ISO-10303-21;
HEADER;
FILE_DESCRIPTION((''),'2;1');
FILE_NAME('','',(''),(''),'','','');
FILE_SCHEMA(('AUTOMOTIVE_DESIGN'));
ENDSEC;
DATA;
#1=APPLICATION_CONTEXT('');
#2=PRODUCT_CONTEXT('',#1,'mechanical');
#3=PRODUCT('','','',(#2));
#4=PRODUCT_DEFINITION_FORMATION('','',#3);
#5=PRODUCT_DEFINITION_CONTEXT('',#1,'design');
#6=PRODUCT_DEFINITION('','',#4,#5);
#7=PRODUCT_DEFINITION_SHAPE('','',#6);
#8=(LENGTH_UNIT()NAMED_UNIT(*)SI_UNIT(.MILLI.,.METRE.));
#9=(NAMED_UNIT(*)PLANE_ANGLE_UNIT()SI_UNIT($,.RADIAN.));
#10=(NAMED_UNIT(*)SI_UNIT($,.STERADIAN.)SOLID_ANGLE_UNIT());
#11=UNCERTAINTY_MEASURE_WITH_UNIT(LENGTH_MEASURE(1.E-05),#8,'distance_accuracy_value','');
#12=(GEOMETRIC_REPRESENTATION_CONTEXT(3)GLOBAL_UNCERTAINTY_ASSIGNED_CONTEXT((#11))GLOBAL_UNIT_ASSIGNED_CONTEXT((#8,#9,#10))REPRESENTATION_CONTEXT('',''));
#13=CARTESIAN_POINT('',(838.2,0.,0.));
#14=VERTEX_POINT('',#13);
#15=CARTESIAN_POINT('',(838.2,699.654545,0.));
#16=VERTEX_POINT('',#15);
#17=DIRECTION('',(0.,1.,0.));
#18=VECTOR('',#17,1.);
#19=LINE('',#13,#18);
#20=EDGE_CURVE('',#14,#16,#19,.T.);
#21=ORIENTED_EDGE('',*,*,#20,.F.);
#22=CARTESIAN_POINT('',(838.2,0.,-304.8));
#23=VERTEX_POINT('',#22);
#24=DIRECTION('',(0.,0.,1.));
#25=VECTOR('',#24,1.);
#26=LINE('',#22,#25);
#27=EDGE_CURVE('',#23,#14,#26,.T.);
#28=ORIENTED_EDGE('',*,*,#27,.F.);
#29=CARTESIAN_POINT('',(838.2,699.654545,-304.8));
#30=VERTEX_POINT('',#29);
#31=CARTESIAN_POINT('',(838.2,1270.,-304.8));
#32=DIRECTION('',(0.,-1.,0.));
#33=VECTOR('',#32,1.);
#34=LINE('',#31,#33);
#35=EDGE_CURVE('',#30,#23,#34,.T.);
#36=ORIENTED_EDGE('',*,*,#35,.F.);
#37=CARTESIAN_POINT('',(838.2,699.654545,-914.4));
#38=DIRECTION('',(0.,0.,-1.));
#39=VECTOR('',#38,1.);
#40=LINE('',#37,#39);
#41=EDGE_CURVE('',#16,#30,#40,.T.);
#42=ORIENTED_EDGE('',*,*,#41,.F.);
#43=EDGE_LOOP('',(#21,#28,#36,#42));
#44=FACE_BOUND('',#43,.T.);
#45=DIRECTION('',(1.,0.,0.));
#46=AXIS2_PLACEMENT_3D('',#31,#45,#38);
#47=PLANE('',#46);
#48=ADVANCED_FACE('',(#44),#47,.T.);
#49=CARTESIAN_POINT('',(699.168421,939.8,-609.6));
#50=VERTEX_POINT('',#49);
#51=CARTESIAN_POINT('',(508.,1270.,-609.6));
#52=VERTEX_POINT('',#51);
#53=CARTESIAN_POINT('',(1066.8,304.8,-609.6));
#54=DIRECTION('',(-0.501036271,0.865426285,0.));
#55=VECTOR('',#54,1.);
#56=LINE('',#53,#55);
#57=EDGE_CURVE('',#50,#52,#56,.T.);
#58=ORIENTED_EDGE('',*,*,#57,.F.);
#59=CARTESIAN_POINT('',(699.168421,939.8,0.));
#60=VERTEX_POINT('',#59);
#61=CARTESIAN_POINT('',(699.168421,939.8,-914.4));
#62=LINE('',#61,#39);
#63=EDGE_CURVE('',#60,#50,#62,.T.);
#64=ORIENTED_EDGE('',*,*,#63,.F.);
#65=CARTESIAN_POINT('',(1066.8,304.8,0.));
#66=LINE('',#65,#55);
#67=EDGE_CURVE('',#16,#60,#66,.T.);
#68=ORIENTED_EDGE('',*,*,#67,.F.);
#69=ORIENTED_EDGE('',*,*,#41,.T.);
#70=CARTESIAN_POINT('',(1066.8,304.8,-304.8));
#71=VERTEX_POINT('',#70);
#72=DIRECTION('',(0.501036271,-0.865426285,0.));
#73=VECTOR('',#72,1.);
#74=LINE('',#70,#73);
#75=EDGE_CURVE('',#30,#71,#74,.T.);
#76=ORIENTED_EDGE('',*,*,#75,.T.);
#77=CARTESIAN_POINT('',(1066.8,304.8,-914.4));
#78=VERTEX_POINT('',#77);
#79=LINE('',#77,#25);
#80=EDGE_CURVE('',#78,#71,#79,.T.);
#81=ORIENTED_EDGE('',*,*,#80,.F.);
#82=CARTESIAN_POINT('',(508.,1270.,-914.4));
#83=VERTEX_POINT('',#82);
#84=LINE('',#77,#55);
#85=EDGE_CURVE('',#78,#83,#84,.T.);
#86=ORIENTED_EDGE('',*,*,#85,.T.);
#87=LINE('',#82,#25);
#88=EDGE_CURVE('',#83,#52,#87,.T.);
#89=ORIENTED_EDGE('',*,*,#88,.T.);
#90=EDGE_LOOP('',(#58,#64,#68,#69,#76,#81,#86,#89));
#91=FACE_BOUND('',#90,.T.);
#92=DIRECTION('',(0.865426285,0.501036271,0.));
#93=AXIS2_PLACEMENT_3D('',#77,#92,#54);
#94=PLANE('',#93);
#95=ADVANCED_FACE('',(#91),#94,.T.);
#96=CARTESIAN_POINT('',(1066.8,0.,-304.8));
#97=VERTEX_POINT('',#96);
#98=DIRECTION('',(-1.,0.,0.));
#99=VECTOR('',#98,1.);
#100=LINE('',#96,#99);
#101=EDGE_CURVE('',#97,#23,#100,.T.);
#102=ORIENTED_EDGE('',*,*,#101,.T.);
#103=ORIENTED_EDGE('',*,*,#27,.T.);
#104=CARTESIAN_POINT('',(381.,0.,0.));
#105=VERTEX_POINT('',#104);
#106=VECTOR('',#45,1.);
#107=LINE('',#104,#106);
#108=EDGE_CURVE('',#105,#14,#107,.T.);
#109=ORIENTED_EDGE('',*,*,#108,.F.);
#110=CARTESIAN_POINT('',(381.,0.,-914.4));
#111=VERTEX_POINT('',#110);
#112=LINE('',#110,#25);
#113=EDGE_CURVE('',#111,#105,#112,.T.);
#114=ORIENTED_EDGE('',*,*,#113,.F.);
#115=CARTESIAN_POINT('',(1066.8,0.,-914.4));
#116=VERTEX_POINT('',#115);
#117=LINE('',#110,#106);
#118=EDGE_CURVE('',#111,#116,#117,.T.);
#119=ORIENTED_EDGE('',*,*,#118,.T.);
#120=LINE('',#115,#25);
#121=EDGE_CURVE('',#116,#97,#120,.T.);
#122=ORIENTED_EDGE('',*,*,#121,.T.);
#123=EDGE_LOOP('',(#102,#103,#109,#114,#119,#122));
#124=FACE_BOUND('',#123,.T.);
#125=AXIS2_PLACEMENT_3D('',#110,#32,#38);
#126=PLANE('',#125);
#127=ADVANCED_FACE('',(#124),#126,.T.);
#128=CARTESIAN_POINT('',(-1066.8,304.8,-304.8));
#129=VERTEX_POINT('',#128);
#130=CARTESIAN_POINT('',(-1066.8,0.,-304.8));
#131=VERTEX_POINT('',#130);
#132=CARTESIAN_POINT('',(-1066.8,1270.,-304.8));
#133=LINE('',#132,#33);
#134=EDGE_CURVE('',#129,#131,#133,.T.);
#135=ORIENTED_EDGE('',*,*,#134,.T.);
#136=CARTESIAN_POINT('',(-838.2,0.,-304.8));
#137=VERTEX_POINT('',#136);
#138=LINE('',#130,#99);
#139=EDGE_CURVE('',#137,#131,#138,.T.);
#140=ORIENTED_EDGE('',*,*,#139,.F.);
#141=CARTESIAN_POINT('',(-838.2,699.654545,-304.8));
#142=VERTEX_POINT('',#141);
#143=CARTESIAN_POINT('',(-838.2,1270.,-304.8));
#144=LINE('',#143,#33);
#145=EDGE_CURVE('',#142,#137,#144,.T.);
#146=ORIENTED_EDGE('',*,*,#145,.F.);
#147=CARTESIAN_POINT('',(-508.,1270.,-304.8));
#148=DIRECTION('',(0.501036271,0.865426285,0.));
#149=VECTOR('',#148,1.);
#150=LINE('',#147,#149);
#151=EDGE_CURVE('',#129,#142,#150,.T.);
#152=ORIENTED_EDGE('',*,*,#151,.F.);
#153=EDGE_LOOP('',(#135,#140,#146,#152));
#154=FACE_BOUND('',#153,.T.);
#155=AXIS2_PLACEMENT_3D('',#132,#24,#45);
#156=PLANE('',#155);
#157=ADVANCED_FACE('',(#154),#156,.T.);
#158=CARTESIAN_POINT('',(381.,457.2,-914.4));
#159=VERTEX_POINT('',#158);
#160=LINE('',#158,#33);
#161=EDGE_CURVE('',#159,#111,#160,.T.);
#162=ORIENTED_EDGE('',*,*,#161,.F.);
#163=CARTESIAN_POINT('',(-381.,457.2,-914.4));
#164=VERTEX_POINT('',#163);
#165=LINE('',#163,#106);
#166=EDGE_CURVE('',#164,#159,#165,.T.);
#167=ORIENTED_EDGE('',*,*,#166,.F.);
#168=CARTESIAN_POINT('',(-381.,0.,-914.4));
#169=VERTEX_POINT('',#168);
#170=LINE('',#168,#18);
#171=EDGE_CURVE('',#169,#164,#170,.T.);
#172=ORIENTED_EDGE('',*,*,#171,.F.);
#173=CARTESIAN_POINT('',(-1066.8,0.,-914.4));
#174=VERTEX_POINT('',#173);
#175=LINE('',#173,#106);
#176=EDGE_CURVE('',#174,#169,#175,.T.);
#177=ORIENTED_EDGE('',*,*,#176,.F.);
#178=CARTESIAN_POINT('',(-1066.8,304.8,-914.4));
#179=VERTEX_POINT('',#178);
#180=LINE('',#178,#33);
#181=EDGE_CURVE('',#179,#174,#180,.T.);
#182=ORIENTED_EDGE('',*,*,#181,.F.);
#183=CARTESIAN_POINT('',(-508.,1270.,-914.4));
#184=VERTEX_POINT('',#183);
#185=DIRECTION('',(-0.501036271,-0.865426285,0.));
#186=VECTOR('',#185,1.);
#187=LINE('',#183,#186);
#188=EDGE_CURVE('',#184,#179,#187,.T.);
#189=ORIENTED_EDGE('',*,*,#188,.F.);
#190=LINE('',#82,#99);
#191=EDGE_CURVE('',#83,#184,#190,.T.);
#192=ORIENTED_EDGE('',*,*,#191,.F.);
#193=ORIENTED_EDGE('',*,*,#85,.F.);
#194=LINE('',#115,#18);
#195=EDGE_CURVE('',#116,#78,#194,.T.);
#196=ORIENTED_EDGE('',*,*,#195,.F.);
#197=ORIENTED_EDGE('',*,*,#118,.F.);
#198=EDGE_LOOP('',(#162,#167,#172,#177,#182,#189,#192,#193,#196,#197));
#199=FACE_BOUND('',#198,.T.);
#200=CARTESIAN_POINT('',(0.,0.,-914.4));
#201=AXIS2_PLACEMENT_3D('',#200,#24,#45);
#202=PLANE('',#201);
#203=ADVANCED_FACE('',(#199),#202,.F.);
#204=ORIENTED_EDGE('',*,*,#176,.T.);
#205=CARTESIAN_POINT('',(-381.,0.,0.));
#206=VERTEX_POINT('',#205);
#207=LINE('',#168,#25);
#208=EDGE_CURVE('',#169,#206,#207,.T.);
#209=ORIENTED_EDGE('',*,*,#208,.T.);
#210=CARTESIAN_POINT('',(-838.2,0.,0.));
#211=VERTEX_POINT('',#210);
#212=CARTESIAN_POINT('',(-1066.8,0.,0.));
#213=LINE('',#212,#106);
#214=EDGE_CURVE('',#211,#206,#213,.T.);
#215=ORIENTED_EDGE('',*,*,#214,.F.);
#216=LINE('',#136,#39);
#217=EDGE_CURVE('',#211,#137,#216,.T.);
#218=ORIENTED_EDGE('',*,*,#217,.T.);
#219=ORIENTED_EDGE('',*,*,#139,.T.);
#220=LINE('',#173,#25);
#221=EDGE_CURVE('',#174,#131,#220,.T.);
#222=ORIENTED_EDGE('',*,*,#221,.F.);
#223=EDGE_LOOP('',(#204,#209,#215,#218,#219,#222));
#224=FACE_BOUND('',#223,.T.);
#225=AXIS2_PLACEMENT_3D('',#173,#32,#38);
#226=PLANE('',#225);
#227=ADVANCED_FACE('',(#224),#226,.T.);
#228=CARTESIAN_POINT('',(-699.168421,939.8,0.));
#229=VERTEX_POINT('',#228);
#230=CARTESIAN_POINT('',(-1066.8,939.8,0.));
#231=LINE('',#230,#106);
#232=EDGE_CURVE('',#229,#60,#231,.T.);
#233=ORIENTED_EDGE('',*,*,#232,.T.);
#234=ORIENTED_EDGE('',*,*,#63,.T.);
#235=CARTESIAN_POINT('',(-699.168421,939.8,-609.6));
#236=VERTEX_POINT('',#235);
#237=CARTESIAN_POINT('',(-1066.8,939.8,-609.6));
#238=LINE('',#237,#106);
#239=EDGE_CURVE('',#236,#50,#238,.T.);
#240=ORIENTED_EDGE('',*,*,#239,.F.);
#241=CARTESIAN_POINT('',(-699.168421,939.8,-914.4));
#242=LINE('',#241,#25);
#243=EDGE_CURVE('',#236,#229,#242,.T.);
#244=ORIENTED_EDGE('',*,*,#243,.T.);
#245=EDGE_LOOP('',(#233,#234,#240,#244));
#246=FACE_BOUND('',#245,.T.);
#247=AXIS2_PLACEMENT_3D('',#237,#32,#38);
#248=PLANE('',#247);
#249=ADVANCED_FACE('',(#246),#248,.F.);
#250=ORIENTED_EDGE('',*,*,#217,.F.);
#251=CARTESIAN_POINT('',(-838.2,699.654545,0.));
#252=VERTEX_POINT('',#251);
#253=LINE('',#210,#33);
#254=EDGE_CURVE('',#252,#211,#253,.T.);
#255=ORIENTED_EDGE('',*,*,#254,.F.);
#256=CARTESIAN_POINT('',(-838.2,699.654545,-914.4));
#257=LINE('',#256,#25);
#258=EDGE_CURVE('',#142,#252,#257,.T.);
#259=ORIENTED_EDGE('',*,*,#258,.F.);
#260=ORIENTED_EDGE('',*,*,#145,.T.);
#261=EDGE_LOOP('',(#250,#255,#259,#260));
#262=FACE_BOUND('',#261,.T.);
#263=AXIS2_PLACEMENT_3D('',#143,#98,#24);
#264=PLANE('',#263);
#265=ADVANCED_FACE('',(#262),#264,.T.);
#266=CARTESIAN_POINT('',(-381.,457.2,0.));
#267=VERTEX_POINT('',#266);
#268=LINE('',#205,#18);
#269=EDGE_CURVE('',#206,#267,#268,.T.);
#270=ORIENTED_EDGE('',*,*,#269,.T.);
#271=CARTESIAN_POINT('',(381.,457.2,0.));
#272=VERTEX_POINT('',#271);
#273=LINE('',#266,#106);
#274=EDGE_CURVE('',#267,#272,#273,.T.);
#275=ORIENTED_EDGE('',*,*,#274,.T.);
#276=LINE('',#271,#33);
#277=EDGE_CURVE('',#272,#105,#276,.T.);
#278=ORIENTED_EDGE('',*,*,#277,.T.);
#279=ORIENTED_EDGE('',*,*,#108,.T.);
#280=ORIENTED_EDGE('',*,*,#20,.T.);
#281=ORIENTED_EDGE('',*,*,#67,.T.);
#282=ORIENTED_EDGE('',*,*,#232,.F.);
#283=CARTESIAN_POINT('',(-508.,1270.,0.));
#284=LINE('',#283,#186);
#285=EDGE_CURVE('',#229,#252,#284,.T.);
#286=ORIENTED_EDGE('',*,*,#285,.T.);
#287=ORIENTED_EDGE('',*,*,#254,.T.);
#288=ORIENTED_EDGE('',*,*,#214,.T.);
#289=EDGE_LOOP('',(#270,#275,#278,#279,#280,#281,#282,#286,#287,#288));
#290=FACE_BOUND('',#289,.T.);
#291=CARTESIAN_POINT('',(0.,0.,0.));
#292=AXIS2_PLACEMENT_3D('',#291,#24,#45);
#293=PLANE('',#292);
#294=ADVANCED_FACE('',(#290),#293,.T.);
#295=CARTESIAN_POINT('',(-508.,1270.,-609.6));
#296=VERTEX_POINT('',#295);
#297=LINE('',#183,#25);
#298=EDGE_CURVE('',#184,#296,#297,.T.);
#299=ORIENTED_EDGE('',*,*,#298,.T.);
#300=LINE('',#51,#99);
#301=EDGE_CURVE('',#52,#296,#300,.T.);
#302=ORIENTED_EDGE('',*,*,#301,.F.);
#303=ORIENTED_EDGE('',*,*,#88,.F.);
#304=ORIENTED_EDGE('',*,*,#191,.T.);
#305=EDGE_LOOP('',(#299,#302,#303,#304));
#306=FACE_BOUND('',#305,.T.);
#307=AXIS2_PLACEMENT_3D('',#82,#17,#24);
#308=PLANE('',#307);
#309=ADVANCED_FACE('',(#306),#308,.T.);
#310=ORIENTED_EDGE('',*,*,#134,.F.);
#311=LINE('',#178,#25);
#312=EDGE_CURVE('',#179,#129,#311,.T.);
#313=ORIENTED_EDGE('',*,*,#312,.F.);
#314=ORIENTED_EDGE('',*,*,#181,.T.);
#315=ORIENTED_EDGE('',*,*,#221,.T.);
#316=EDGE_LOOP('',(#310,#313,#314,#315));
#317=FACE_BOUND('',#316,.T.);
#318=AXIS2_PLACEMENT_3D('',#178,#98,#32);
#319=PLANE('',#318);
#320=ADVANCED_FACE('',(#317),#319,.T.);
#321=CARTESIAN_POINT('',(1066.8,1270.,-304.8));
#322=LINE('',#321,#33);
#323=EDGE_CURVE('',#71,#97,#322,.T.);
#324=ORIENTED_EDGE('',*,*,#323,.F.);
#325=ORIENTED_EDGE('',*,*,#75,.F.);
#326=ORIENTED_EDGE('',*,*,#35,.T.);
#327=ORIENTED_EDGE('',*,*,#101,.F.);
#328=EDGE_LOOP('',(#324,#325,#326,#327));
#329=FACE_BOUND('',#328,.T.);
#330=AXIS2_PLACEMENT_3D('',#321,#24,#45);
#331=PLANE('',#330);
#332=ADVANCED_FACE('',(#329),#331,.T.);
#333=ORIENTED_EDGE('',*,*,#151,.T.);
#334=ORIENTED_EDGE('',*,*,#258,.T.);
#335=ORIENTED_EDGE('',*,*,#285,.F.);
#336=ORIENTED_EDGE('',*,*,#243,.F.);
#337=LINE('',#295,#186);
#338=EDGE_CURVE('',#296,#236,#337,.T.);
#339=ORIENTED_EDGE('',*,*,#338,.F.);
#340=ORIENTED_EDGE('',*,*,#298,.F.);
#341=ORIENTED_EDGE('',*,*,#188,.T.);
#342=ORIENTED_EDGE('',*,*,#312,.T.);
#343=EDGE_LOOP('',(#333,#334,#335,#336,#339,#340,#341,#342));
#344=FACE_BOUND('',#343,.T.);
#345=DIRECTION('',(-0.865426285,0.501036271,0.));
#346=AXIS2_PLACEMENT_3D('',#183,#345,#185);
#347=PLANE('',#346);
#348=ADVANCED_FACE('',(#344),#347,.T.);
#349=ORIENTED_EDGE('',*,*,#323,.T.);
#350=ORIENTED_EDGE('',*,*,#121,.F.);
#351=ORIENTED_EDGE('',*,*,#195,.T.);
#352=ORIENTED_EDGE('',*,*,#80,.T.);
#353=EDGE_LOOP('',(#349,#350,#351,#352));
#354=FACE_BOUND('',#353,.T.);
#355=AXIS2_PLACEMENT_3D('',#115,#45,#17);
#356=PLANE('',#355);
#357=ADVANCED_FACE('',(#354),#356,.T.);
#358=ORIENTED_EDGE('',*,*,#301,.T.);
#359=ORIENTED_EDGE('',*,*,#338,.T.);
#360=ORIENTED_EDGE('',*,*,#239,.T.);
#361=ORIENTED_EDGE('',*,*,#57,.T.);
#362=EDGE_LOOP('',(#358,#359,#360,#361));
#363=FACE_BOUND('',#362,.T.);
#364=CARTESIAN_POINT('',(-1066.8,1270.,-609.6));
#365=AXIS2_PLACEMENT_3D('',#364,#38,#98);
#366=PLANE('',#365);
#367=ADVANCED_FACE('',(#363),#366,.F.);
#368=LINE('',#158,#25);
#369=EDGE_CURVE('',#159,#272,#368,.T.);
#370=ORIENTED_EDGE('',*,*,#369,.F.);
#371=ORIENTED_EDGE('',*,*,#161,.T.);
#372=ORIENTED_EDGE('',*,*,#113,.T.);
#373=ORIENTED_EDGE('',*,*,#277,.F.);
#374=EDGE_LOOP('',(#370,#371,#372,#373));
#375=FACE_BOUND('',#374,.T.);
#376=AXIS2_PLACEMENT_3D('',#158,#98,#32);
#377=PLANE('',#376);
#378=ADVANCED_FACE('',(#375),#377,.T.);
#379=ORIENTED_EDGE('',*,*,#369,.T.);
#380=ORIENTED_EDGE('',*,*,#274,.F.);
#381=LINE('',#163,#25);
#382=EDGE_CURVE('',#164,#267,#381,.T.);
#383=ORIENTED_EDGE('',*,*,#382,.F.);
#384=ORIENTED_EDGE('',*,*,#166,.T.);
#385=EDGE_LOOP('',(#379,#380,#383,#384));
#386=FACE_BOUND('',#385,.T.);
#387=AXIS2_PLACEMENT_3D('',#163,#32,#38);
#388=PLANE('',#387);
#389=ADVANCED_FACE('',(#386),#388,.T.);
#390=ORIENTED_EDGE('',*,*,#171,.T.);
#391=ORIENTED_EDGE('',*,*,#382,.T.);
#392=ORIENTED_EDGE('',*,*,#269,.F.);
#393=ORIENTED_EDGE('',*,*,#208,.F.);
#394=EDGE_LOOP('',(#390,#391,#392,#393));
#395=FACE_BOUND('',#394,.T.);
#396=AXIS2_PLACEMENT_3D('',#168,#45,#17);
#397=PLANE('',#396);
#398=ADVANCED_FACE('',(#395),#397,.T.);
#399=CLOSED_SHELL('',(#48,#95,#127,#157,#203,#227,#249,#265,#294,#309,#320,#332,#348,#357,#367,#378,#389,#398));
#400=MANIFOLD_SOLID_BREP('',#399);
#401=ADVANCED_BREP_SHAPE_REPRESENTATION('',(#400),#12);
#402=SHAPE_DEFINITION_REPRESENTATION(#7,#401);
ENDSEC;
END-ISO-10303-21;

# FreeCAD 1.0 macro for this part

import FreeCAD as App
import Part
import Sketcher
Q = App.Units.Quantity


def add_polygon(sketch, points):
    """Adds a closed chain of lines whose ends are joined by coincident constraints."""
    first, n = sketch.GeometryCount, len(points)
    for a, b in zip(points, points[1:] + points[:1]):
        sketch.addGeometry(Part.LineSegment(App.Vector(*a, 0), App.Vector(*b, 0)), False)
    for i in range(n):
        sketch.addConstraint(Sketcher.Constraint("Coincident", first + i, 2, first + (i + 1) % n, 1))

doc = App.newDocument("Part")
body = doc.addObject("PartDesign::Body", "Body")

# Sketch on XY plane
sketch1 = body.newObject("Sketcher::SketchObject", "Sketch")
sketch1.AttachmentSupport = (doc.getObject("XY_Plane"), [""])
sketch1.MapMode = "FlatFace"
add_polygon(sketch1, [(-381, 0), (-381, 457), (381, 457), (381, 0), (1067, 0), (1067, 305), (508, 1270), (-508, 1270), (-1067, 305), (-1067, 0)])  # lines 0-9
sketch1.addConstraint(Sketcher.Constraint("Vertical", 0))
sketch1.addConstraint(Sketcher.Constraint("Horizontal", 1))
sketch1.addConstraint(Sketcher.Constraint("Vertical", 2))
sketch1.addConstraint(Sketcher.Constraint("Horizontal", 3))
sketch1.addConstraint(Sketcher.Constraint("Vertical", 4))
sketch1.addConstraint(Sketcher.Constraint("Horizontal", 6))
sketch1.addConstraint(Sketcher.Constraint("Vertical", 8))
sketch1.addConstraint(Sketcher.Constraint("Horizontal", 9))
sketch1.addConstraint(Sketcher.Constraint("Symmetric", 3, 2, 8, 2, -1, 1))
sketch1.addConstraint(Sketcher.Constraint("Symmetric", 2, 2, 9, 2, -2))
sketch1.addConstraint(Sketcher.Constraint("Horizontal", 4, 2, 7, 2))
sketch1.addConstraint(Sketcher.Constraint("Equal", 5, 7))
sketch1.addConstraint(Sketcher.Constraint("DistanceX", 1, 1, 1, 2, Q("30 in")))
sketch1.addConstraint(Sketcher.Constraint("DistanceX", 3, 1, 3, 2, Q("27 in")))
sketch1.addConstraint(Sketcher.Constraint("DistanceX", 6, 2, 6, 1, Q("40 in")))
sketch1.addConstraint(Sketcher.Constraint("DistanceY", 0, 1, 0, 2, Q("18 in")))
sketch1.addConstraint(Sketcher.Constraint("DistanceY", 4, 1, 4, 2, Q("12 in")))
sketch1.addConstraint(Sketcher.Constraint("DistanceY", -1, 1, 5, 2, Q("50 in")))
pad1 = body.newObject("PartDesign::Pad", "Pad")
pad1.Profile = sketch1
pad1.Length = Q("36 in")
pad1.Reversed = True

# Sketch on XZ plane
sketch2 = body.newObject("Sketcher::SketchObject", "Sketch001")
sketch2.AttachmentSupport = (doc.getObject("XZ_Plane"), [""])
sketch2.MapMode = "FlatFace"
add_polygon(sketch2, [(-1067, -305), (-1067, 0), (-838, 0), (-838, -305)])  # lines 0-3
add_polygon(sketch2, [(838, -305), (838, 0), (1067, 0), (1067, -305)])  # lines 4-7
sketch2.addConstraint(Sketcher.Constraint("Vertical", 0))
sketch2.addConstraint(Sketcher.Constraint("Horizontal", 1))
sketch2.addConstraint(Sketcher.Constraint("Vertical", 2))
sketch2.addConstraint(Sketcher.Constraint("Horizontal", 3))
sketch2.addConstraint(Sketcher.Constraint("Vertical", 4))
sketch2.addConstraint(Sketcher.Constraint("Horizontal", 5))
sketch2.addConstraint(Sketcher.Constraint("Vertical", 6))
sketch2.addConstraint(Sketcher.Constraint("Horizontal", 7))
sketch2.addConstraint(Sketcher.Constraint("Symmetric", 1, 2, 4, 2, -1, 1))
sketch2.addConstraint(Sketcher.Constraint("Symmetric", 0, 2, 5, 2, -2))
sketch2.addConstraint(Sketcher.Constraint("Horizontal", 3, 2, 6, 2))
sketch2.addConstraint(Sketcher.Constraint("DistanceX", 1, 1, 1, 2, Q("9 in")))
sketch2.addConstraint(Sketcher.Constraint("DistanceY", 0, 1, 0, 2, Q("12 in")))
sketch2.addConstraint(Sketcher.Constraint("DistanceX", 0, 2, -1, 1, Q("42 in")))
pocket1 = body.newObject("PartDesign::Pocket", "Pocket")
pocket1.Profile = sketch2
pocket1.Type = "ThroughAll"

# Sketch on YZ plane
sketch3 = body.newObject("Sketcher::SketchObject", "Sketch002")
sketch3.AttachmentSupport = (doc.getObject("YZ_Plane"), [""])
sketch3.MapMode = "FlatFace"
add_polygon(sketch3, [(1270, 0), (940, 0), (940, -610), (1270, -610)])  # lines 0-3
sketch3.addConstraint(Sketcher.Constraint("Horizontal", 0))
sketch3.addConstraint(Sketcher.Constraint("Vertical", 1))
sketch3.addConstraint(Sketcher.Constraint("Horizontal", 2))
sketch3.addConstraint(Sketcher.Constraint("Vertical", 3))
sketch3.addConstraint(Sketcher.Constraint("PointOnObject", 0, 2, -1))
sketch3.addConstraint(Sketcher.Constraint("DistanceX", 0, 2, 0, 1, Q("13 in")))
sketch3.addConstraint(Sketcher.Constraint("DistanceY", 1, 2, 1, 1, Q("24 in")))
sketch3.addConstraint(Sketcher.Constraint("DistanceX", -1, 1, 0, 2, Q("37 in")))
pocket2 = body.newObject("PartDesign::Pocket", "Pocket001")
pocket2.Profile = sketch3
pocket2.Type = "ThroughAll"
pocket2.Midplane = True

doc.recompute()
